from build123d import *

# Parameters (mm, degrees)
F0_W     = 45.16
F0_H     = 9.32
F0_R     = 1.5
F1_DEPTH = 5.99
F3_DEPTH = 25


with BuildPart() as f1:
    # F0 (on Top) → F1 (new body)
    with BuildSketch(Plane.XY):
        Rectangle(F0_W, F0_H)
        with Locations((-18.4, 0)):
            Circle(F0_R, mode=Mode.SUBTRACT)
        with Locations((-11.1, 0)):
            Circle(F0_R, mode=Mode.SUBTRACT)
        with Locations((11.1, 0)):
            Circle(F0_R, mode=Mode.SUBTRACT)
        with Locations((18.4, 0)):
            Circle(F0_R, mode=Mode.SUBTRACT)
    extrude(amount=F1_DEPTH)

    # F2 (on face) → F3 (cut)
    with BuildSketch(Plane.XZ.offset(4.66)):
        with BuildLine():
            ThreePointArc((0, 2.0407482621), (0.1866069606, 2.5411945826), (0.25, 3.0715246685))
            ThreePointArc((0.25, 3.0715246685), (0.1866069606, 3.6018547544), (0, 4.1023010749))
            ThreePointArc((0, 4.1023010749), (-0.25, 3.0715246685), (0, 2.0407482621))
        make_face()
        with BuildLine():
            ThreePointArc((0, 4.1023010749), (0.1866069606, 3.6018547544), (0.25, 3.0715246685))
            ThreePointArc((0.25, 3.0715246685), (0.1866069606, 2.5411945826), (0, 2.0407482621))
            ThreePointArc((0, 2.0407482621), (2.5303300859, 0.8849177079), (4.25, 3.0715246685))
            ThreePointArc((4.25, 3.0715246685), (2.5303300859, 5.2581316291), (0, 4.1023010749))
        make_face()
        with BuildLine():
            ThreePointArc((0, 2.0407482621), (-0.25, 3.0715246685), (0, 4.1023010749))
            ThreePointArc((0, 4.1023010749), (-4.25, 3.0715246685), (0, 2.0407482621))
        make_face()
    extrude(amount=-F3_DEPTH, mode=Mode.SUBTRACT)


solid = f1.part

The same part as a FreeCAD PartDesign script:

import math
import FreeCAD as App
import Part
import Sketcher
Q = App.Units.Quantity

doc = App.newDocument("Part")
body = doc.addObject("PartDesign::Body", "Body")

# Sketch on XY plane
sketch1 = body.newObject("Sketcher::SketchObject", "Sketch")
sketch1.AttachmentSupport = (doc.getObject("XY_Plane"), [""])
sketch1.MapMode = "FlatFace"
sketch1.addGeometry(Part.LineSegment(App.Vector(-22.6, 4.7, 0), App.Vector(-22.6, -4.7, 0)), False)
sketch1.addGeometry(Part.LineSegment(App.Vector(-22.6, -4.7, 0), App.Vector(22.6, -4.7, 0)), False)
sketch1.addGeometry(Part.LineSegment(App.Vector(22.6, -4.7, 0), App.Vector(22.6, 4.7, 0)), False)
sketch1.addGeometry(Part.LineSegment(App.Vector(22.6, 4.7, 0), App.Vector(-22.6, 4.7, 0)), False)
sketch1.addGeometry(Part.Circle(App.Vector(-18.4, 0, 0), App.Vector(0, 0, 1), 1.5), False)
sketch1.addGeometry(Part.Circle(App.Vector(-11.1, 0, 0), App.Vector(0, 0, 1), 1.5), False)
sketch1.addGeometry(Part.Circle(App.Vector(11.1, 0, 0), App.Vector(0, 0, 1), 1.5), False)
sketch1.addGeometry(Part.Circle(App.Vector(18.4, 0, 0), App.Vector(0, 0, 1), 1.5), False)
sketch1.addConstraint(Sketcher.Constraint("Coincident", 0, 2, 1, 1))
sketch1.addConstraint(Sketcher.Constraint("Coincident", 1, 2, 2, 1))
sketch1.addConstraint(Sketcher.Constraint("Coincident", 2, 2, 3, 1))
sketch1.addConstraint(Sketcher.Constraint("Coincident", 3, 2, 0, 1))
sketch1.addConstraint(Sketcher.Constraint("Vertical", 0))
sketch1.addConstraint(Sketcher.Constraint("Horizontal", 1))
sketch1.addConstraint(Sketcher.Constraint("Vertical", 2))
sketch1.addConstraint(Sketcher.Constraint("Horizontal", 3))
sketch1.addConstraint(Sketcher.Constraint("Equal", 4, 5))
sketch1.addConstraint(Sketcher.Constraint("Equal", 5, 6))
sketch1.addConstraint(Sketcher.Constraint("Equal", 6, 7))
sketch1.addConstraint(Sketcher.Constraint("Symmetric", 5, 3, 6, 3, -1, 1))
sketch1.addConstraint(Sketcher.Constraint("Symmetric", 4, 3, 7, 3, -1, 1))
sketch1.addConstraint(Sketcher.Constraint("Symmetric", 0, 2, 2, 2, -1, 1))
sketch1.addConstraint(Sketcher.Constraint("PointOnObject", 4, 3, -1))
sketch1.addConstraint(Sketcher.Constraint("PointOnObject", 5, 3, -1))
sketch1.addConstraint(Sketcher.Constraint("Diameter", 4, Q("3 mm")))
sketch1.addConstraint(Sketcher.Constraint("DistanceX", 1, 1, 1, 2, Q("45.16 mm")))
sketch1.addConstraint(Sketcher.Constraint("DistanceY", 0, 2, 0, 1, Q("9.32 mm")))
sketch1.addConstraint(Sketcher.Constraint("DistanceX", 4, 3, -1, 1, Q("18.4 mm")))
sketch1.addConstraint(Sketcher.Constraint("DistanceX", 5, 3, -1, 1, Q("11.1 mm")))
pad1 = body.newObject("PartDesign::Pad", "Pad")
pad1.Profile = sketch1
pad1.Length = 5.99

# Sketch on XZ plane
sketch2 = body.newObject("Sketcher::SketchObject", "Sketch001")
sketch2.AttachmentSupport = (doc.getObject("XZ_Plane"), [""])
sketch2.MapMode = "FlatFace"
sketch2.AttachmentOffset = App.Placement(App.Vector(0, 0, 4.66), App.Rotation())
sketch2.addGeometry(Part.ArcOfCircle(Part.Circle(App.Vector(2, 3.1, 0), App.Vector(0, 0, 1), 2.2), math.radians(-153), math.radians(0)), False)
sketch2.addGeometry(Part.ArcOfCircle(Part.Circle(App.Vector(2, 3.1, 0), App.Vector(0, 0, 1), 2.2), math.radians(0), math.radians(153)), False)
sketch2.addGeometry(Part.ArcOfCircle(Part.Circle(App.Vector(-2, 3.1, 0), App.Vector(0, 0, 1), 2.2), math.radians(27), math.radians(333)), False)
sketch2.addConstraint(Sketcher.Constraint("Tangent", 0, 2, 1, 1))
sketch2.addConstraint(Sketcher.Constraint("Coincident", 1, 2, 2, 1))
sketch2.addConstraint(Sketcher.Constraint("Coincident", 2, 2, 0, 1))
sketch2.addConstraint(Sketcher.Constraint("Equal", 0, 1))
sketch2.addConstraint(Sketcher.Constraint("Equal", 1, 2))
sketch2.addConstraint(Sketcher.Constraint("Symmetric", 0, 3, 2, 3, -2))
sketch2.addConstraint(Sketcher.Constraint("Horizontal", 2, 3, 0, 2))
sketch2.addConstraint(Sketcher.Constraint("Radius", 0, Q("2.25 mm")))
sketch2.addConstraint(Sketcher.Constraint("DistanceX", -1, 1, 0, 3, Q("2 mm")))
sketch2.addConstraint(Sketcher.Constraint("DistanceY", -1, 1, 1, 2, Q("4.102301 mm")))
pocket1 = body.newObject("PartDesign::Pocket", "Pocket")
pocket1.Profile = sketch2
pocket1.Length = 25

doc.recompute()
